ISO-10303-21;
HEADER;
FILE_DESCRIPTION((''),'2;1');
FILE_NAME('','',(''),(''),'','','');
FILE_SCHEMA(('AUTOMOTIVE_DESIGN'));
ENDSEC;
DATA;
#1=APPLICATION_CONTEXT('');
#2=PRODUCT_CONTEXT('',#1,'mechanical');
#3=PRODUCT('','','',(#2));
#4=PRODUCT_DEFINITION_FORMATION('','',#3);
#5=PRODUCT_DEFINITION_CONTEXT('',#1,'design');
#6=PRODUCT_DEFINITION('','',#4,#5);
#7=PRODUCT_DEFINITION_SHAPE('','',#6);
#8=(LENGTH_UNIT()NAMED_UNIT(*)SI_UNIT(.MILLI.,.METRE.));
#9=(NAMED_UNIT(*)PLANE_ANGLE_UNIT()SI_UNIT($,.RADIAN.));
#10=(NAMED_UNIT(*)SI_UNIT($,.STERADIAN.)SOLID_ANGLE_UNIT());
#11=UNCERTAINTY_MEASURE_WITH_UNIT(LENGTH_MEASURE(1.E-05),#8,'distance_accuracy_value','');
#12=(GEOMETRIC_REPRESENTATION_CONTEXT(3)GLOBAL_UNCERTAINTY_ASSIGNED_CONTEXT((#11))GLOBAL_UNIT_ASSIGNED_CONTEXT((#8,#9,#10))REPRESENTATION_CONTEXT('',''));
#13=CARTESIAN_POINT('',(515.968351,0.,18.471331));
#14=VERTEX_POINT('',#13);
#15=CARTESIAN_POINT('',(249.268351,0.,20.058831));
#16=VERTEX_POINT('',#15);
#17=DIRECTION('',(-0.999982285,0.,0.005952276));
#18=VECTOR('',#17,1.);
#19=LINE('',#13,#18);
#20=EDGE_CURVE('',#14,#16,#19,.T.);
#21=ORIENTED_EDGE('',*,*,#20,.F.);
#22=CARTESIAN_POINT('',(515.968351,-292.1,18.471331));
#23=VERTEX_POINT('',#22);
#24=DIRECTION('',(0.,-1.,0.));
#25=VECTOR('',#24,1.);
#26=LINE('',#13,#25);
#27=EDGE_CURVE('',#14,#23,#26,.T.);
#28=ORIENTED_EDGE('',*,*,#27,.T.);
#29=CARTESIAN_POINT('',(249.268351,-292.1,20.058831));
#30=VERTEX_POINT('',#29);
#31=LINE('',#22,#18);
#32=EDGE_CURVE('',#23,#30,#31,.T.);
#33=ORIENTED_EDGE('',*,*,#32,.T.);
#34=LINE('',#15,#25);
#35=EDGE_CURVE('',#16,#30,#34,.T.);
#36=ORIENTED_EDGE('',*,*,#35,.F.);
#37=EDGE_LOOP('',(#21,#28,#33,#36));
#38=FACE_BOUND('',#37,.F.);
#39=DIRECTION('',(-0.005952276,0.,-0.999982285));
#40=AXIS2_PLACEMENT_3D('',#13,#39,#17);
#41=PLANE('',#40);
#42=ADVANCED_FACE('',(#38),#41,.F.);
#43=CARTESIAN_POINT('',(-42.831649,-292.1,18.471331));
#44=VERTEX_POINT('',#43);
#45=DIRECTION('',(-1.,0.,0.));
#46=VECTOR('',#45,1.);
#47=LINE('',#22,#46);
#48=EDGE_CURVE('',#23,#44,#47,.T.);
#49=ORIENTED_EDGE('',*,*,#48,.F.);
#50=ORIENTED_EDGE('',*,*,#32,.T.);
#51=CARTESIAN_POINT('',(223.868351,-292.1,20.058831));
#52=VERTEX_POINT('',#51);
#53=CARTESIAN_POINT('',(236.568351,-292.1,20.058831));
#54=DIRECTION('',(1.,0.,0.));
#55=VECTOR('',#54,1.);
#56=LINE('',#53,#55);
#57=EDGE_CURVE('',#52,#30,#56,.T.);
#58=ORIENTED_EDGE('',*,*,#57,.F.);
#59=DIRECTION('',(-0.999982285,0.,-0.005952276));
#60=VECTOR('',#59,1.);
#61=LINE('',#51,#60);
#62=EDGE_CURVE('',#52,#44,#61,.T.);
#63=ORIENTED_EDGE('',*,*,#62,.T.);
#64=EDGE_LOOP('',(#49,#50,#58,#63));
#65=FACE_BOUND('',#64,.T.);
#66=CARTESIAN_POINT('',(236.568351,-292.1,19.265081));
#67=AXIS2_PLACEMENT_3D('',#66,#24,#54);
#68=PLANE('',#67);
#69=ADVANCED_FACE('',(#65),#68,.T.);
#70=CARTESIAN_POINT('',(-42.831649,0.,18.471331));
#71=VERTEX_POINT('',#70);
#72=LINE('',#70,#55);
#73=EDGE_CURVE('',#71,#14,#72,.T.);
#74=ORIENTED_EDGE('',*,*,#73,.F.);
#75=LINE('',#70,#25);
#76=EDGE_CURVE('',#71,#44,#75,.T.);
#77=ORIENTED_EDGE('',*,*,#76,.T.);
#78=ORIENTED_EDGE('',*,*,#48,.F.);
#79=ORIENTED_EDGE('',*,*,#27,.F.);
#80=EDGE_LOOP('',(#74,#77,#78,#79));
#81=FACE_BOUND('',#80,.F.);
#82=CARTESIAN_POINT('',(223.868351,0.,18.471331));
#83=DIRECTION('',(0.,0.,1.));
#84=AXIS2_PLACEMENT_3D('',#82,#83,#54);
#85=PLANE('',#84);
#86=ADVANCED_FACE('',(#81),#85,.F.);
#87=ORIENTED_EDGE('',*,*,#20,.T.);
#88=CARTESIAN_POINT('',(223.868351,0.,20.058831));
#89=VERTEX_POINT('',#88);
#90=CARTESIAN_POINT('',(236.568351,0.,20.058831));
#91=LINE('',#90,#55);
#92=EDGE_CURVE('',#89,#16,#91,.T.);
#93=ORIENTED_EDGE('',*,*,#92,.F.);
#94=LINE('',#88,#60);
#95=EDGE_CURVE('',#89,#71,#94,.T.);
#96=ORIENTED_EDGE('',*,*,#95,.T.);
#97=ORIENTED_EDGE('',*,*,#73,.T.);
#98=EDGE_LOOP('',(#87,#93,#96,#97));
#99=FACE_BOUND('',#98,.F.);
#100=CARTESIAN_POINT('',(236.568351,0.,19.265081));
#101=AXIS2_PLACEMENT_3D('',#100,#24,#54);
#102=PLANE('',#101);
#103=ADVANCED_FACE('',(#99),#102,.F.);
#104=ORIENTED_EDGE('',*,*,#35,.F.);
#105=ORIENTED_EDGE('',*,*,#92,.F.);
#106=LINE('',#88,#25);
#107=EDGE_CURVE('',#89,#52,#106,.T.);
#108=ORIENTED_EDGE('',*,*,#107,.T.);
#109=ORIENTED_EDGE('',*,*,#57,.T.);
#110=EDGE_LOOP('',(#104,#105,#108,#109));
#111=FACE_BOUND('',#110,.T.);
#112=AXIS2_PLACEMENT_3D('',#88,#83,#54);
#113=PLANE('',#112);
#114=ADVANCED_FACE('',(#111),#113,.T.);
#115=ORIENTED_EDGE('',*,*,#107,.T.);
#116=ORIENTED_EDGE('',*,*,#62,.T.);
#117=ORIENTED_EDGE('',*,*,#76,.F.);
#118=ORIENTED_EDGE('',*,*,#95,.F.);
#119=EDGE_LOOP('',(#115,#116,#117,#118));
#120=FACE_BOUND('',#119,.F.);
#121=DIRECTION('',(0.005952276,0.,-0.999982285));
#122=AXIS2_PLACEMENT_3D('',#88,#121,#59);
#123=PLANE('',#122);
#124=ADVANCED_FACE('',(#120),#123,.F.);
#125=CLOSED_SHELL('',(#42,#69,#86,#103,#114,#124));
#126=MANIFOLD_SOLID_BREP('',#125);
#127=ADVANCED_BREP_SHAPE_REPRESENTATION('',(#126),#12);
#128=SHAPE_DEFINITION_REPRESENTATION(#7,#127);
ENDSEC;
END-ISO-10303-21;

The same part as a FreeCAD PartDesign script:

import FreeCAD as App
import Part
import Sketcher

V = App.Vector
Q = App.Units.Quantity

doc = App.newDocument("Part")
body = doc.addObject("PartDesign::Body", "Body")
body.AllowCompound = True

sketch1 = body.newObject("Sketcher::SketchObject", "Sketch")
sketch1.AttachmentSupport = (doc.getObject("XZ_Plane"), [""])
sketch1.MapMode = "FlatFace"
sketch1.addGeometry([
    Part.LineSegment(V(223.9, 20.1, 0), V(-42.8, 18.5, 0)),
    Part.LineSegment(V(-42.8, 18.5, 0), V(223.9, 18.5, 0)),
    Part.LineSegment(V(223.9, 18.5, 0), V(223.9, 20.1, 0)),
    Part.LineSegment(V(516, 18.5, 0), V(249.3, 20.1, 0)),
    Part.LineSegment(V(249.3, 20.1, 0), V(249.3, 18.5, 0)),
    Part.LineSegment(V(249.3, 18.5, 0), V(516, 18.5, 0)),
], False)
sketch1.addConstraint([
    Sketcher.Constraint("Coincident", 0, 2, 1, 1),
    Sketcher.Constraint("Coincident", 1, 2, 2, 1),
    Sketcher.Constraint("Coincident", 2, 2, 0, 1),
    Sketcher.Constraint("Coincident", 3, 2, 4, 1),
    Sketcher.Constraint("Coincident", 4, 2, 5, 1),
    Sketcher.Constraint("Coincident", 5, 2, 3, 1),
    Sketcher.Constraint("Horizontal", 1),
    Sketcher.Constraint("Vertical", 2),
    Sketcher.Constraint("Vertical", 4),
    Sketcher.Constraint("Horizontal", 5),
    Sketcher.Constraint("Horizontal", 2, 2, 3, 2),
    Sketcher.Constraint("Horizontal", 1, 2, 4, 2),
    Sketcher.Constraint("Equal", 1, 5),
    Sketcher.Constraint("DistanceX", 1, 1, 1, 2, Q("10.5 in")),
    Sketcher.Constraint("DistanceX", 2, 2, 3, 2, Q("1 in")),
    Sketcher.Constraint("DistanceY", 2, 1, 2, 2, Q("0.0625 in")),
    Sketcher.Constraint("DistanceX", 0, 2, -1, 1, 42.831649),
    Sketcher.Constraint("DistanceY", -1, 1, 0, 2, 18.471331),
])
pad1 = body.newObject("PartDesign::Pad", "Pad")
pad1.Profile = sketch1
pad1.Length = Q("11.5 in")

sketch2 = body.newObject("Sketcher::SketchObject", "Sketch001")
sketch2.AttachmentSupport = (doc.getObject("XZ_Plane"), [""])
sketch2.MapMode = "FlatFace"
sketch2.addGeometry([
    Part.LineSegment(V(223.9, 20.1, 0), V(223.9, 18.5, 0)),
    Part.LineSegment(V(223.9, 18.5, 0), V(249.3, 18.5, 0)),
    Part.LineSegment(V(249.3, 18.5, 0), V(249.3, 20.1, 0)),
    Part.LineSegment(V(249.3, 20.1, 0), V(223.9, 20.1, 0)),
], False)
sketch2.addConstraint([
    Sketcher.Constraint("Coincident", 0, 2, 1, 1),
    Sketcher.Constraint("Coincident", 1, 2, 2, 1),
    Sketcher.Constraint("Coincident", 2, 2, 3, 1),
    Sketcher.Constraint("Coincident", 3, 2, 0, 1),
    Sketcher.Constraint("Vertical", 0),
    Sketcher.Constraint("Horizontal", 1),
    Sketcher.Constraint("Vertical", 2),
    Sketcher.Constraint("Horizontal", 3),
    Sketcher.Constraint("DistanceX", 1, 1, 1, 2, Q("1 in")),
    Sketcher.Constraint("DistanceY", 0, 2, 0, 1, Q("0.0625 in")),
    Sketcher.Constraint("DistanceX", -1, 1, 0, 2, 223.868351),
    Sketcher.Constraint("DistanceY", -1, 1, 0, 2, 18.471331),
])
pad2 = body.newObject("PartDesign::Pad", "Pad001")
pad2.Profile = sketch2
pad2.Length = Q("11.5 in")

doc.recompute()
